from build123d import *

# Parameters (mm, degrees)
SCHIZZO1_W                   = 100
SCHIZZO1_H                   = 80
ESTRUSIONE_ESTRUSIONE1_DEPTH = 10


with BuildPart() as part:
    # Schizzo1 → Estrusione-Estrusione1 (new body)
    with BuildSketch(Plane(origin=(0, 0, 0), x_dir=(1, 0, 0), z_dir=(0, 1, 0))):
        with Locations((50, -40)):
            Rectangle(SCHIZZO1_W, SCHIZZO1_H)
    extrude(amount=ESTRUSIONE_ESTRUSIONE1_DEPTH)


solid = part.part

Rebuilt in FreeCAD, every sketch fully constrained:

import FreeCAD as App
import Part
import Sketcher
Q = App.Units.Quantity


def add_polygon(sketch, points):
    """Adds a closed chain of lines whose ends are joined by coincident constraints."""
    first, n = sketch.GeometryCount, len(points)
    for a, b in zip(points, points[1:] + points[:1]):
        sketch.addGeometry(Part.LineSegment(App.Vector(*a, 0), App.Vector(*b, 0)), False)
    for i in range(n):
        sketch.addConstraint(Sketcher.Constraint("Coincident", first + i, 2, first + (i + 1) % n, 1))

doc = App.newDocument("Part")
body = doc.addObject("PartDesign::Body", "Body")

sketch1 = doc.addObject("Sketcher::SketchObject", "Sketch")
body.addObject(sketch1)
sketch1.AttachmentSupport = (doc.XZ_Plane, [""])
sketch1.MapMode = "FlatFace"
add_polygon(sketch1, [(0, 0), (0, 80), (100, 80), (100, 0)])
sketch1.addConstraint(Sketcher.Constraint("Vertical", 0))
sketch1.addConstraint(Sketcher.Constraint("Horizontal", 1))
sketch1.addConstraint(Sketcher.Constraint("Vertical", 2))
sketch1.addConstraint(Sketcher.Constraint("Horizontal", 3))
sketch1.addConstraint(Sketcher.Constraint("Coincident", 3, 2, -1, 1))
sketch1.addConstraint(Sketcher.Constraint("DistanceX", 1, 1, 1, 2, Q("100 mm")))
sketch1.addConstraint(Sketcher.Constraint("DistanceY", 0, 1, 0, 2, Q("80 mm")))
pad1 = doc.addObject("PartDesign::Pad", "Pad")
body.addObject(pad1)
pad1.Profile = sketch1
pad1.Length = 10
pad1.Reversed = True

doc.recompute()
